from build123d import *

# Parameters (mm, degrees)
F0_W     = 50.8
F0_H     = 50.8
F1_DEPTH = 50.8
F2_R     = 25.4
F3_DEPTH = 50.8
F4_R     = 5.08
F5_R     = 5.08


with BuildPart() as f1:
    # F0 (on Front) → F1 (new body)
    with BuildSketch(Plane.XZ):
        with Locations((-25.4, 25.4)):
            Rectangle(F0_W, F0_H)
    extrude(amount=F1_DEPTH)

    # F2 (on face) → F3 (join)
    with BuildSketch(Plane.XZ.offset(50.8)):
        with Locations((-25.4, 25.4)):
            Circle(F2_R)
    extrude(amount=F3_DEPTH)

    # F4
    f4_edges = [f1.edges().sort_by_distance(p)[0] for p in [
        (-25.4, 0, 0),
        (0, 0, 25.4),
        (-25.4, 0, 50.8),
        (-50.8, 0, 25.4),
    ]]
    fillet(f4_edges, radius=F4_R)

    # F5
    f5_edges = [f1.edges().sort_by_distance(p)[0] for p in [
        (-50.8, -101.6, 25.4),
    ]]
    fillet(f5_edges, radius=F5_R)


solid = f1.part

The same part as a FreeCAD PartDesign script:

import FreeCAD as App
import Part
import Sketcher
from FreeCAD import Vector
Q = App.Units.Quantity


def edges_at(feature, points):
    """Names of the edges that pass closest to the given points."""
    edges = feature.Shape.Edges
    near = lambda p: min(range(len(edges)), key=lambda i: edges[i].distToShape(Part.Vertex(*p))[0])
    return sorted({f"Edge{near(p) + 1}" for p in points})


def add_polygon(sketch, points):
    """Adds a closed chain of lines whose ends are joined by coincident constraints."""
    first, n = sketch.GeometryCount, len(points)
    for a, b in zip(points, points[1:] + points[:1]):
        sketch.addGeometry(Part.LineSegment(App.Vector(*a, 0), App.Vector(*b, 0)), False)
    for i in range(n):
        sketch.addConstraint(Sketcher.Constraint("Coincident", first + i, 2, first + (i + 1) % n, 1))

doc = App.newDocument("Part")
params = doc.addObject("Spreadsheet::Sheet", "Params")
for row, (alias, value) in enumerate([
    ("sketch1_width", "2 in"),
    ("pad1_length", "2 in"),
    ("sketch2_diameter", "2 in"),
    ("pad2_length", "2 in"),
    ("fillet_radius", "0.2 in"),
    ("fillet2_radius", "0.2 in"),
], start=1):
    params.set(f"A{row}", alias)
    params.set(f"B{row}", "=" + value)
    params.setAlias(f"B{row}", alias)

body = doc.addObject("PartDesign::Body", "Body")

# Sketch on XZ plane
sketch1 = doc.addObject("Sketcher::SketchObject", "Sketch")
body.addObject(sketch1)
sketch1.AttachmentSupport = (doc.XZ_Plane, [""])
sketch1.MapMode = "FlatFace"
add_polygon(sketch1, [(-50.8, 50.8), (-50.8, 0), (0, 0), (0, 50.8)])  # lines 0-3
sketch1.addConstraint(Sketcher.Constraint("Vertical", 0))
sketch1.addConstraint(Sketcher.Constraint("Horizontal", 1))
sketch1.addConstraint(Sketcher.Constraint("Vertical", 2))
sketch1.addConstraint(Sketcher.Constraint("Horizontal", 3))
sketch1.addConstraint(Sketcher.Constraint("Coincident", 1, 2, -1, 1))
sketch1.addConstraint(Sketcher.Constraint("Equal", 3, 0))
sketch1.addConstraint(Sketcher.Constraint("DistanceX", 1, 1, 1, 2, Q("2 in")))
sketch1.setExpression("Constraints[10]", "Params.sketch1_width")
pad1 = doc.addObject("PartDesign::Pad", "Pad")
body.addObject(pad1)
pad1.Profile = sketch1
pad1.setExpression("Length", "Params.pad1_length")

# Sketch on XZ plane
sketch2 = doc.addObject("Sketcher::SketchObject", "Sketch001")
body.addObject(sketch2)
sketch2.AttachmentSupport = (doc.XZ_Plane, [""])
sketch2.MapMode = "FlatFace"
sketch2.AttachmentOffset = App.Placement(Vector(0, 0, 2 * 25.4), App.Rotation())
sketch2.addGeometry(Part.Circle(Vector(-25.4, 25.4, 0), Vector(0, 0, 1), 25.4), False)
sketch2.addConstraint(Sketcher.Constraint("Diameter", 0, Q("2 in")))
sketch2.addConstraint(Sketcher.Constraint("DistanceX", 0, 3, -1, 1, Q("1 in")))
sketch2.addConstraint(Sketcher.Constraint("DistanceY", -1, 1, 0, 3, Q("1 in")))
sketch2.setExpression("Constraints[0]", "Params.sketch2_diameter")
pad2 = doc.addObject("PartDesign::Pad", "Pad001")
body.addObject(pad2)
pad2.Profile = sketch2
pad2.setExpression("Length", "Params.pad2_length")
doc.recompute()

fillet = doc.addObject("PartDesign::Fillet", "Fillet")
body.addObject(fillet)
fillet.Base = (pad2, edges_at(pad2, [
    (-25.4, 0, 0),
    (0, 0, 25.4),
    (-25.4, 0, 50.8),
    (-50.8, 0, 25.4),
]))
fillet.setExpression("Radius", "Params.fillet_radius")
doc.recompute()

fillet2 = doc.addObject("PartDesign::Fillet", "Fillet001")
body.addObject(fillet2)
fillet2.Base = (fillet, edges_at(fillet, [(-50.8, -101.6, 25.4)]))
fillet2.setExpression("Radius", "Params.fillet2_radius")

doc.recompute()
